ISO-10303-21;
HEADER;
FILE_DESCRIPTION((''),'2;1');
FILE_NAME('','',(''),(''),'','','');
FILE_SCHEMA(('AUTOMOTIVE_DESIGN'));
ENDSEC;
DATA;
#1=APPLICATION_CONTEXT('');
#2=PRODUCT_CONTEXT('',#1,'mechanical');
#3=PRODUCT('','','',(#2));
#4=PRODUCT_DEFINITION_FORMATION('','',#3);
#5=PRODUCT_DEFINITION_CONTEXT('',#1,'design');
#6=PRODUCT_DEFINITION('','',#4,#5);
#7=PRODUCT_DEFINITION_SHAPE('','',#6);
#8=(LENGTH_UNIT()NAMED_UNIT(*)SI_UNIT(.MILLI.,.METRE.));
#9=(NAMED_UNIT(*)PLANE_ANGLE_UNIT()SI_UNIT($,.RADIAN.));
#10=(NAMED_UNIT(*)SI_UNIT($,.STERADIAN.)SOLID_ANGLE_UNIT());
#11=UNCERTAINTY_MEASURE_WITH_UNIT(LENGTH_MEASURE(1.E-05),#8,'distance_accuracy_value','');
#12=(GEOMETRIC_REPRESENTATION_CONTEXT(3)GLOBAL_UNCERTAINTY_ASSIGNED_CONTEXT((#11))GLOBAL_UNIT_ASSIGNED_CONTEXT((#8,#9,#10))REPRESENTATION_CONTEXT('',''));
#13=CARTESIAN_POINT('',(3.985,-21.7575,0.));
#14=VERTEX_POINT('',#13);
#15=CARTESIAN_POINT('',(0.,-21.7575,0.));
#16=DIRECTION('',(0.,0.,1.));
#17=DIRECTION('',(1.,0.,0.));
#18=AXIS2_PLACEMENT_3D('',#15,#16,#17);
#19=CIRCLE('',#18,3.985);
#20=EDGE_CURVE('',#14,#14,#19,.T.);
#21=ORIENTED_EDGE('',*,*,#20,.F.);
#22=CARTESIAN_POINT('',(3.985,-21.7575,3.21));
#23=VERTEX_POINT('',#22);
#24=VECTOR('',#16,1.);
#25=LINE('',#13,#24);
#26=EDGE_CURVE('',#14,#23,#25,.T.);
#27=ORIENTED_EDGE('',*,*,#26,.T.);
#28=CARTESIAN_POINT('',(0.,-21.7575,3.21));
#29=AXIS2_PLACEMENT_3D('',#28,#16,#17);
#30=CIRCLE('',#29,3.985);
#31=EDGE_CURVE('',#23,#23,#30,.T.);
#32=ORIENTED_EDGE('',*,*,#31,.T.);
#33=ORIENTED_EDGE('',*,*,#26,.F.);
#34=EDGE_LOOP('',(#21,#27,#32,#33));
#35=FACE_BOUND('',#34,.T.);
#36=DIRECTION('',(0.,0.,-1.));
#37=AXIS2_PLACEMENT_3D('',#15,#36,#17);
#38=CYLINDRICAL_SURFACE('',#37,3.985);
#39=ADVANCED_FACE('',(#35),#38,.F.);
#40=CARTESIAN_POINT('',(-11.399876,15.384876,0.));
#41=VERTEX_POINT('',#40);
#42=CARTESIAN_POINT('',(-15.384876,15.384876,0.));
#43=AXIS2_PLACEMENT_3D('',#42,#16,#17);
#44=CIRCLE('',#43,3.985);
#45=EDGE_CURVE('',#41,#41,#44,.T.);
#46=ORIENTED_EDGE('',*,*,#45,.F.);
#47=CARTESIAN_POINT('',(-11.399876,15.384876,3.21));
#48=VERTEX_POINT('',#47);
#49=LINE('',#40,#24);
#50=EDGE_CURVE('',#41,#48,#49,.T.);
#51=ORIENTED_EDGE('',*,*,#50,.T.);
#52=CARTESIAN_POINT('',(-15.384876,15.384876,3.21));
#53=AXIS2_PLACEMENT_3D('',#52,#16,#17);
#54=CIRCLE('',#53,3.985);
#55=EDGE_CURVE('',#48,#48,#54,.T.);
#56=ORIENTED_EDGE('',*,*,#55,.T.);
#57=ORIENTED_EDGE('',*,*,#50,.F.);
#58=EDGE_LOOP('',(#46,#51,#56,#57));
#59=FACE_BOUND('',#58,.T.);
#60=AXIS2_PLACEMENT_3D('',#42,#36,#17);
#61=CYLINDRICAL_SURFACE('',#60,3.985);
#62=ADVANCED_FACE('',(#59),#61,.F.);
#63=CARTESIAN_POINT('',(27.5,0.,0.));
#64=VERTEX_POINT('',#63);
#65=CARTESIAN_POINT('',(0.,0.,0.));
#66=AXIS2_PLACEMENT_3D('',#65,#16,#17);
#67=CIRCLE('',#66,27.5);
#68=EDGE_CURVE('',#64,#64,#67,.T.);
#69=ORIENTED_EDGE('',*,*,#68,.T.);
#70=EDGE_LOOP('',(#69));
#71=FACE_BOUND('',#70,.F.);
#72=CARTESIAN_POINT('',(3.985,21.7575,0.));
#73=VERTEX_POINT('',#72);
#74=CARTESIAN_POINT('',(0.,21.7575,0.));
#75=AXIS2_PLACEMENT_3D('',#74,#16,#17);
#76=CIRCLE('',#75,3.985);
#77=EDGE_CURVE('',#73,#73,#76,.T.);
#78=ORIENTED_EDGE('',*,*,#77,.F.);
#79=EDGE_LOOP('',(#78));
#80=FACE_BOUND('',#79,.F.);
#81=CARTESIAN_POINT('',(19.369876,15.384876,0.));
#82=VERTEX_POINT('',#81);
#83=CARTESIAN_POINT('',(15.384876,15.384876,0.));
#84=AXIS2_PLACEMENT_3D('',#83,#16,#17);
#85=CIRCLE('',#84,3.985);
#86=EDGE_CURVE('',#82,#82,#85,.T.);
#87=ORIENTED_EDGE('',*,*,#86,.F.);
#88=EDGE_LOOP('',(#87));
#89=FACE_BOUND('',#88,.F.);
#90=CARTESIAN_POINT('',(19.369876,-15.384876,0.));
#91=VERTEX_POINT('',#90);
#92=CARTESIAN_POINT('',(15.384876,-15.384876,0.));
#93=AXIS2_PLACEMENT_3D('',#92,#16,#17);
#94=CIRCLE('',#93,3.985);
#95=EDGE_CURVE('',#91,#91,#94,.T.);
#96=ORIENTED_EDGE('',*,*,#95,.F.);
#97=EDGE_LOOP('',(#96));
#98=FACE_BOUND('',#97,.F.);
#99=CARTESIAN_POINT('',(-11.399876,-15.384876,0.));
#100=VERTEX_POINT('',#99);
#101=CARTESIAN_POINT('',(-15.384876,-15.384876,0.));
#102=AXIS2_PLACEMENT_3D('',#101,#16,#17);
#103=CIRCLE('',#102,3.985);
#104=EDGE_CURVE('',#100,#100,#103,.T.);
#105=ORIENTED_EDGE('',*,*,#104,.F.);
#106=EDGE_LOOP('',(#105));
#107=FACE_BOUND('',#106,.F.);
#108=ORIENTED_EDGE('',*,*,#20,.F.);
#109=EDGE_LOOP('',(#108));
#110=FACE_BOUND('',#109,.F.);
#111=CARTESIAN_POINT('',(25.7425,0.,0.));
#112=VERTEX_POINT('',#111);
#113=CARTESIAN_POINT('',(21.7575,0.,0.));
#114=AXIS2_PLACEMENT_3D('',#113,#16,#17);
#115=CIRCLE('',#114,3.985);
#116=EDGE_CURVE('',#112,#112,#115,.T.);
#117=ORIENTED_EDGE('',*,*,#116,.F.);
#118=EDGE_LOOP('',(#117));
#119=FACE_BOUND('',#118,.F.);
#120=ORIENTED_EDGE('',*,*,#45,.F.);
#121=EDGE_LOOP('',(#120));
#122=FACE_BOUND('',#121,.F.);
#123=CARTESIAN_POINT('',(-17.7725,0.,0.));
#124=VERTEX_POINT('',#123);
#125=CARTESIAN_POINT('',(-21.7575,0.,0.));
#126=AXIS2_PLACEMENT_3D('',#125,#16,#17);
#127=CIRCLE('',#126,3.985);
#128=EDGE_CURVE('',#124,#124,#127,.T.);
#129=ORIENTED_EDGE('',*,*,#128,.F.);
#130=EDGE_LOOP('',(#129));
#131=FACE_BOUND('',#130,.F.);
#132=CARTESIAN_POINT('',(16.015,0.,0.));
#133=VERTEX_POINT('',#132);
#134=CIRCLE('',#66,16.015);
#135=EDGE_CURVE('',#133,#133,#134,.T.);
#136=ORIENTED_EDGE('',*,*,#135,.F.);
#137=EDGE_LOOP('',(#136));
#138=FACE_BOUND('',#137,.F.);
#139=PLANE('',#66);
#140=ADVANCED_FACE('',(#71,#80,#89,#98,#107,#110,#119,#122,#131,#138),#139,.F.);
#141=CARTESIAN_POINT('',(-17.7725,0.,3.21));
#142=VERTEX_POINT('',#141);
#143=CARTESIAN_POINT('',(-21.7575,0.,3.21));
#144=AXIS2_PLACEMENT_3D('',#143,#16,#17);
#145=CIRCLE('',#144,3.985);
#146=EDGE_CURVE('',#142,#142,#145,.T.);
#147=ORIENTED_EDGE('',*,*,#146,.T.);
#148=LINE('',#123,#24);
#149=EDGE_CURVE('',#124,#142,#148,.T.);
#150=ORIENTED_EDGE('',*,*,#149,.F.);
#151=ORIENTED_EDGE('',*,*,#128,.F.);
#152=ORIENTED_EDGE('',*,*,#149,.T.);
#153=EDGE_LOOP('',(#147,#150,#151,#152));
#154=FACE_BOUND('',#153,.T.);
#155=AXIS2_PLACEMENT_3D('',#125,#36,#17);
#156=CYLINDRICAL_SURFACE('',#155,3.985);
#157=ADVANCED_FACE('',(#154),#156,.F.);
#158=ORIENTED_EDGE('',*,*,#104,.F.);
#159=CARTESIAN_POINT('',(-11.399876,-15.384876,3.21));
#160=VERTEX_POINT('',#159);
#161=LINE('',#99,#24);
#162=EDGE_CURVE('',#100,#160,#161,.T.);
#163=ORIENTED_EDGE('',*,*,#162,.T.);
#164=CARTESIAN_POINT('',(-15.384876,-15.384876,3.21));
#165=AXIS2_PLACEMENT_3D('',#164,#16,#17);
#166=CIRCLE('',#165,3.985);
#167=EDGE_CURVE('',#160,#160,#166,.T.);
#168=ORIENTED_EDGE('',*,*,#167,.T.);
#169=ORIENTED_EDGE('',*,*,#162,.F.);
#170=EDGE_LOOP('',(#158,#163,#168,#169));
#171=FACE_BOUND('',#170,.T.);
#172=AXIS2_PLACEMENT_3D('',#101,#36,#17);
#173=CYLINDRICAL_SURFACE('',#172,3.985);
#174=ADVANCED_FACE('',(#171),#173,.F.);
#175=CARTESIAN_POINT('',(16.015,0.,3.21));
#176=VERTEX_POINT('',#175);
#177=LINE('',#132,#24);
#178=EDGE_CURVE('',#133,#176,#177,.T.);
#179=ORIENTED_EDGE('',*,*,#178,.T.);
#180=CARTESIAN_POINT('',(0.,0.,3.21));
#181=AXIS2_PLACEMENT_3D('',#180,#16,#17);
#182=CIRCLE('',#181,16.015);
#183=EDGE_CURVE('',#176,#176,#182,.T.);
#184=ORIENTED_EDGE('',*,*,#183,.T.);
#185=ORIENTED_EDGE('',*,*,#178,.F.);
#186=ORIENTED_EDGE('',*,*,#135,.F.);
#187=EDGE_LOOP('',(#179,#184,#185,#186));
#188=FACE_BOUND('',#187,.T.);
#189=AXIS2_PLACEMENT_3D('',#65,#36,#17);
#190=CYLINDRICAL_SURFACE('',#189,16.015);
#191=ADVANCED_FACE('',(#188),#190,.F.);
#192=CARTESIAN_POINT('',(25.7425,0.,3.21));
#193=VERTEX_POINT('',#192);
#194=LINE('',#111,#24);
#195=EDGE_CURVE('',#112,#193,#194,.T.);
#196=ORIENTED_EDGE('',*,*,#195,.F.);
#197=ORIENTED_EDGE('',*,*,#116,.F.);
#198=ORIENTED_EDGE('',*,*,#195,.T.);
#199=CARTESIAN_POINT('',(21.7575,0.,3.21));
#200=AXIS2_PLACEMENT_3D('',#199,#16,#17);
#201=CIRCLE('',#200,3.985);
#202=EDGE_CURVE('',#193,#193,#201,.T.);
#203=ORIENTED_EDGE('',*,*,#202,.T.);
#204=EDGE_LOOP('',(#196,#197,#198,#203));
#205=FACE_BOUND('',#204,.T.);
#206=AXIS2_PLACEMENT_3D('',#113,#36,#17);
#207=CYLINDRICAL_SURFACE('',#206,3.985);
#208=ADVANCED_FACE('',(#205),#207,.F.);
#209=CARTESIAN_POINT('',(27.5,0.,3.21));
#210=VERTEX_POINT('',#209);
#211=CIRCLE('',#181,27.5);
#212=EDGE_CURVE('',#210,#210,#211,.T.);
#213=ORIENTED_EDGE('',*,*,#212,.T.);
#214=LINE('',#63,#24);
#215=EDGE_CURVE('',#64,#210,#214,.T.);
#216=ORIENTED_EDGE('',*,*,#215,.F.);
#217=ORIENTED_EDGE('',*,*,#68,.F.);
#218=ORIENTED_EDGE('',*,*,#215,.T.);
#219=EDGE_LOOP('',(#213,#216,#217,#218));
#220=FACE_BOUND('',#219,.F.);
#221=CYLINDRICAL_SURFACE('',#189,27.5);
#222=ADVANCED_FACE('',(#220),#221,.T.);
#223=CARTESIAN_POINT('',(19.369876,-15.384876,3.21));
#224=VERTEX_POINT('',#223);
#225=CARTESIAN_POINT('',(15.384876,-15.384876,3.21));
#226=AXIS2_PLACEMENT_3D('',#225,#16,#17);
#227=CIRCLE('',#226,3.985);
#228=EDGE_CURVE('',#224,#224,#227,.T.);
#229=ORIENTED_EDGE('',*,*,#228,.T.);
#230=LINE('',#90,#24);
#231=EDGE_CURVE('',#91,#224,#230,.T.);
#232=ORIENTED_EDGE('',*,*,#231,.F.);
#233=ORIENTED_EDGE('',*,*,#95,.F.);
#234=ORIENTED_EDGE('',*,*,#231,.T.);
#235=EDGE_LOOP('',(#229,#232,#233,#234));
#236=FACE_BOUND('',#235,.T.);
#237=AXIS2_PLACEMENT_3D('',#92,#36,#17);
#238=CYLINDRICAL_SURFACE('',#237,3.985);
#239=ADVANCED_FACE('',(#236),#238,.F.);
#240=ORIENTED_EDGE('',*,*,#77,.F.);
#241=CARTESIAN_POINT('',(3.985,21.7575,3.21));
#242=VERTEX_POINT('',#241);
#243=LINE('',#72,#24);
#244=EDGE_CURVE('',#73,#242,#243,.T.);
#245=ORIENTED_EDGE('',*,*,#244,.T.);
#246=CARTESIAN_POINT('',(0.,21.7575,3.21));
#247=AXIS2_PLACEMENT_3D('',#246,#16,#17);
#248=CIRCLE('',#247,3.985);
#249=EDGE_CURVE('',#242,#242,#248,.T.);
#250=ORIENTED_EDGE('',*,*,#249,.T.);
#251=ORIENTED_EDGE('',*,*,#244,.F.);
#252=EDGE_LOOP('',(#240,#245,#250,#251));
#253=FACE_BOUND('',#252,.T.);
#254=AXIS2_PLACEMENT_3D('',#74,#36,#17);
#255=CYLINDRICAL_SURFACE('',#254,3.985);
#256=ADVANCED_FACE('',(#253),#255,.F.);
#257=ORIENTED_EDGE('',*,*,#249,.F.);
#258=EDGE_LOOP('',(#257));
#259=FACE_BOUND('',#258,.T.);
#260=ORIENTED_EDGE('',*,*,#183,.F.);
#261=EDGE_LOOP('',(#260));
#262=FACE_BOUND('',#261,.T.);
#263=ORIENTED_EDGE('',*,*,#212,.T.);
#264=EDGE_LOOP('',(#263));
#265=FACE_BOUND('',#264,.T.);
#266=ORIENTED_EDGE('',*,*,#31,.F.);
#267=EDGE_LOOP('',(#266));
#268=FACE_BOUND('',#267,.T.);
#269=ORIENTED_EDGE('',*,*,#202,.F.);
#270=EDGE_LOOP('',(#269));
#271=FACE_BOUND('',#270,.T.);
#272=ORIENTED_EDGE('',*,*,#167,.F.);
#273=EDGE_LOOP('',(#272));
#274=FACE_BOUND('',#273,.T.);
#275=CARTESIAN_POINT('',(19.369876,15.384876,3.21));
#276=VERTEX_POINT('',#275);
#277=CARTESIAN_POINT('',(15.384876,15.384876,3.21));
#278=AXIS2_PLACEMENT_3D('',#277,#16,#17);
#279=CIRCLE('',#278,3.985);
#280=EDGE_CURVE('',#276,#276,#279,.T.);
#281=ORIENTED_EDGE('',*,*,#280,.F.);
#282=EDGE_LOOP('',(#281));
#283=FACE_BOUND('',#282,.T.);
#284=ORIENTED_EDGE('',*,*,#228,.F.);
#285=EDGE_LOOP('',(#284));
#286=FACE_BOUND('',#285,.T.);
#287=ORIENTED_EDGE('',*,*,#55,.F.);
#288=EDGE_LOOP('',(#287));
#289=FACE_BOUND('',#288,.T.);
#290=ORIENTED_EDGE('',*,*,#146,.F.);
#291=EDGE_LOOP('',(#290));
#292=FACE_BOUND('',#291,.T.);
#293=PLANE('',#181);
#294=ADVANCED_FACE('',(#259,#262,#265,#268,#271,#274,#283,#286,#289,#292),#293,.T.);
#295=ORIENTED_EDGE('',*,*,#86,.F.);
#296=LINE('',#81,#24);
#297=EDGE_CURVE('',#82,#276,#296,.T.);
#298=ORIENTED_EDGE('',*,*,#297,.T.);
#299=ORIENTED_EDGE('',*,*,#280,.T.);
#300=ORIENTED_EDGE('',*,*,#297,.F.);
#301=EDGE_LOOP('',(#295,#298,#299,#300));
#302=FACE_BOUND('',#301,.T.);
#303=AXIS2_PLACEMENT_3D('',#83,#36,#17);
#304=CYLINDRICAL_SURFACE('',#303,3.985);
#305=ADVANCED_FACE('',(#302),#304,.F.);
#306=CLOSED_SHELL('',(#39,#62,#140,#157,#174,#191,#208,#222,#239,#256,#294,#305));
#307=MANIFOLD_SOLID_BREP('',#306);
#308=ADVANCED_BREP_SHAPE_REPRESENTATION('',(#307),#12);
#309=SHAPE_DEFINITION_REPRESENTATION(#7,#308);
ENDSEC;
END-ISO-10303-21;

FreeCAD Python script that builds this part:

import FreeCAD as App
import Part
import Sketcher
from FreeCAD import Vector

doc = App.newDocument("Part")
body = doc.addObject("PartDesign::Body", "Body")

# Sketch on XY plane
sketch1 = body.newObject("Sketcher::SketchObject", "Sketch")
sketch1.AttachmentSupport = (doc.getObject("XY_Plane"), [""])
sketch1.MapMode = "FlatFace"
sketch1.addGeometry(Part.Circle(Vector(0, 0, 0), Vector(0, 0, 1), 27.5), False)
sketch1.addGeometry(Part.Circle(Vector(-15.4, -15.4, 0), Vector(0, 0, 1), 4), False)
sketch1.addGeometry(Part.Circle(Vector(0, -21.8, 0), Vector(0, 0, 1), 4), False)
sketch1.addGeometry(Part.Circle(Vector(-21.8, 0, 0), Vector(0, 0, 1), 4), False)
sketch1.addGeometry(Part.Circle(Vector(0, 0, 0), Vector(0, 0, 1), 16), False)
sketch1.addGeometry(Part.Circle(Vector(15.4, -15.4, 0), Vector(0, 0, 1), 4), False)
sketch1.addGeometry(Part.Circle(Vector(21.8, 0, 0), Vector(0, 0, 1), 4), False)
sketch1.addGeometry(Part.Circle(Vector(-15.4, 15.4, 0), Vector(0, 0, 1), 4), False)
sketch1.addGeometry(Part.Circle(Vector(0, 21.8, 0), Vector(0, 0, 1), 4), False)
sketch1.addGeometry(Part.Circle(Vector(15.4, 15.4, 0), Vector(0, 0, 1), 4), False)
sketch1.addConstraint(Sketcher.Constraint("Coincident", 0, 3, -1, 1))
sketch1.addConstraint(Sketcher.Constraint("Coincident", 4, 3, -1, 1))
sketch1.addConstraint(Sketcher.Constraint("Equal", 1, 2))
sketch1.addConstraint(Sketcher.Constraint("Equal", 2, 3))
sketch1.addConstraint(Sketcher.Constraint("Equal", 3, 5))
sketch1.addConstraint(Sketcher.Constraint("Equal", 5, 6))
sketch1.addConstraint(Sketcher.Constraint("Equal", 6, 7))
sketch1.addConstraint(Sketcher.Constraint("Equal", 7, 8))
sketch1.addConstraint(Sketcher.Constraint("Equal", 8, 9))
sketch1.addConstraint(Sketcher.Constraint("Symmetric", 3, 3, 6, 3, -1, 1))
sketch1.addConstraint(Sketcher.Constraint("Symmetric", 5, 3, 7, 3, -1, 1))
sketch1.addConstraint(Sketcher.Constraint("Symmetric", 2, 3, 8, 3, -1, 1))
sketch1.addConstraint(Sketcher.Constraint("Symmetric", 1, 3, 9, 3, -1, 1))
sketch1.addConstraint(Sketcher.Constraint("Symmetric", 1, 3, 5, 3, -2))
sketch1.addConstraint(Sketcher.Constraint("PointOnObject", 2, 3, -2))
sketch1.addConstraint(Sketcher.Constraint("PointOnObject", 3, 3, -1))
sketch1.addConstraint(Sketcher.Constraint("Diameter", 0, 55.0))
sketch1.addConstraint(Sketcher.Constraint("Diameter", 1, 7.97))
sketch1.addConstraint(Sketcher.Constraint("Diameter", 4, 32.03))
sketch1.addConstraint(Sketcher.Constraint("DistanceY", 2, 3, -1, 1, 21.7575))
sketch1.addConstraint(Sketcher.Constraint("DistanceX", 3, 3, -1, 1, 21.7575))
sketch1.addConstraint(Sketcher.Constraint("DistanceX", 1, 3, -1, 1, 15.384876))
sketch1.addConstraint(Sketcher.Constraint("DistanceY", 1, 3, -1, 1, 15.384876))
pad1 = body.newObject("PartDesign::Pad", "Pad")
pad1.Profile = sketch1
pad1.Length = 3.21

doc.recompute()
